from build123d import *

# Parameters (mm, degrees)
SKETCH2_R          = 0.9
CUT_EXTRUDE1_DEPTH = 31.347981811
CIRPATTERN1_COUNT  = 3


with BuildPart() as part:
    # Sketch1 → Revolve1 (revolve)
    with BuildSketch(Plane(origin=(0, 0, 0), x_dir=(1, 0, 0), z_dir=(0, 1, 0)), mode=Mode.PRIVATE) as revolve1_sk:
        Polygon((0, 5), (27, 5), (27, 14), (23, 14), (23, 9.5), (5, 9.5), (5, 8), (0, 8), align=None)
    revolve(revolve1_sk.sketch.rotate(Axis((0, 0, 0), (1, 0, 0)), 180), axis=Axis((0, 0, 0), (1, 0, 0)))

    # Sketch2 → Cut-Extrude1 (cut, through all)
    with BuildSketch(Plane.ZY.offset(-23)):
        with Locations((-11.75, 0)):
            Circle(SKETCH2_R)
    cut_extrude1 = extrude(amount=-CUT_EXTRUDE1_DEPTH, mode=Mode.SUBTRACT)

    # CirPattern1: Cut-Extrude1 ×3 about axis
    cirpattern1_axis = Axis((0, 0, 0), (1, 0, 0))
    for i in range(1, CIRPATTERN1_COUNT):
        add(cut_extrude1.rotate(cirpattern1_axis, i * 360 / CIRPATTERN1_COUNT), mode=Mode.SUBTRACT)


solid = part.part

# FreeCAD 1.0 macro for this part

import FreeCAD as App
import Part
import Sketcher
Q = App.Units.Quantity


def add_polygon(sketch, points):
    """Adds a closed chain of lines whose ends are joined by coincident constraints."""
    first, n = sketch.GeometryCount, len(points)
    for a, b in zip(points, points[1:] + points[:1]):
        sketch.addGeometry(Part.LineSegment(App.Vector(*a, 0), App.Vector(*b, 0)), False)
    for i in range(n):
        sketch.addConstraint(Sketcher.Constraint("Coincident", first + i, 2, first + (i + 1) % n, 1))

doc = App.newDocument("Part")
body = doc.addObject("PartDesign::Body", "Body")

# Sketch on XZ plane
sketch1 = doc.addObject("Sketcher::SketchObject", "Sketch")
body.addObject(sketch1)
sketch1.AttachmentSupport = (doc.XZ_Plane, [""])
sketch1.MapMode = "FlatFace"
add_polygon(sketch1, [(0, -5), (27, -5), (27, -14), (23, -14), (23, -9.5), (5, -9.5), (5, -8), (0, -8)])  # lines 0-7
sketch1.addConstraint([
    Sketcher.Constraint("Horizontal", 0),
    Sketcher.Constraint("Vertical", 1),
    Sketcher.Constraint("Horizontal", 2),
    Sketcher.Constraint("Vertical", 3),
    Sketcher.Constraint("Horizontal", 4),
    Sketcher.Constraint("Vertical", 5),
    Sketcher.Constraint("Horizontal", 6),
    Sketcher.Constraint("Vertical", 7),
    Sketcher.Constraint("PointOnObject", 6, 2, -2),
    Sketcher.Constraint("DistanceX", 0, 1, 0, 2, Q("27 mm")),
    Sketcher.Constraint("DistanceX", 2, 2, 2, 1, Q("4 mm")),
    Sketcher.Constraint("DistanceX", 4, 2, 4, 1, Q("18 mm")),
    Sketcher.Constraint("DistanceY", 1, 2, 1, 1, Q("9 mm")),
    Sketcher.Constraint("DistanceY", 7, 1, 7, 2, Q("3 mm")),
    Sketcher.Constraint("DistanceY", 3, 1, 3, 2, Q("4.5 mm")),
    Sketcher.Constraint("DistanceY", 0, 2, -1, 1, Q("5 mm")),
])
revolution = doc.addObject("PartDesign::Revolution", "Revolution")
body.addObject(revolution)
revolution.Profile = sketch1
revolution.ReferenceAxis = (sketch1, ["H_Axis"])
revolution.Angle = 360

# Sketch on YZ plane
sketch2 = doc.addObject("Sketcher::SketchObject", "Sketch001")
body.addObject(sketch2)
sketch2.AttachmentSupport = (doc.YZ_Plane, [""])
sketch2.MapMode = "FlatFace"
sketch2.AttachmentOffset = App.Placement(App.Vector(0, 0, 23), App.Rotation())
sketch2.addGeometry(Part.Circle(App.Vector(0, -11.8, 0), App.Vector(0, 0, 1), 0.9), False)
sketch2.addConstraint([
    Sketcher.Constraint("PointOnObject", 0, 3, -2),
    Sketcher.Constraint("Diameter", 0, Q("1.8 mm")),
    Sketcher.Constraint("DistanceY", 0, 3, -1, 1, Q("11.75 mm")),
])
pocket1 = doc.addObject("PartDesign::Pocket", "Pocket")
body.addObject(pocket1)
pocket1.Profile = sketch2
pocket1.Type = "ThroughAll"
pocket1.Reversed = True
doc.recompute()

polarpattern = doc.addObject("PartDesign::PolarPattern", "PolarPattern")
body.addObject(polarpattern)
polarpattern.Originals = [pocket1]
polarpattern.Axis = (doc.X_Axis, [""])
polarpattern.Angle = 360
polarpattern.Occurrences = 3
body.Tip = polarpattern

doc.recompute()
